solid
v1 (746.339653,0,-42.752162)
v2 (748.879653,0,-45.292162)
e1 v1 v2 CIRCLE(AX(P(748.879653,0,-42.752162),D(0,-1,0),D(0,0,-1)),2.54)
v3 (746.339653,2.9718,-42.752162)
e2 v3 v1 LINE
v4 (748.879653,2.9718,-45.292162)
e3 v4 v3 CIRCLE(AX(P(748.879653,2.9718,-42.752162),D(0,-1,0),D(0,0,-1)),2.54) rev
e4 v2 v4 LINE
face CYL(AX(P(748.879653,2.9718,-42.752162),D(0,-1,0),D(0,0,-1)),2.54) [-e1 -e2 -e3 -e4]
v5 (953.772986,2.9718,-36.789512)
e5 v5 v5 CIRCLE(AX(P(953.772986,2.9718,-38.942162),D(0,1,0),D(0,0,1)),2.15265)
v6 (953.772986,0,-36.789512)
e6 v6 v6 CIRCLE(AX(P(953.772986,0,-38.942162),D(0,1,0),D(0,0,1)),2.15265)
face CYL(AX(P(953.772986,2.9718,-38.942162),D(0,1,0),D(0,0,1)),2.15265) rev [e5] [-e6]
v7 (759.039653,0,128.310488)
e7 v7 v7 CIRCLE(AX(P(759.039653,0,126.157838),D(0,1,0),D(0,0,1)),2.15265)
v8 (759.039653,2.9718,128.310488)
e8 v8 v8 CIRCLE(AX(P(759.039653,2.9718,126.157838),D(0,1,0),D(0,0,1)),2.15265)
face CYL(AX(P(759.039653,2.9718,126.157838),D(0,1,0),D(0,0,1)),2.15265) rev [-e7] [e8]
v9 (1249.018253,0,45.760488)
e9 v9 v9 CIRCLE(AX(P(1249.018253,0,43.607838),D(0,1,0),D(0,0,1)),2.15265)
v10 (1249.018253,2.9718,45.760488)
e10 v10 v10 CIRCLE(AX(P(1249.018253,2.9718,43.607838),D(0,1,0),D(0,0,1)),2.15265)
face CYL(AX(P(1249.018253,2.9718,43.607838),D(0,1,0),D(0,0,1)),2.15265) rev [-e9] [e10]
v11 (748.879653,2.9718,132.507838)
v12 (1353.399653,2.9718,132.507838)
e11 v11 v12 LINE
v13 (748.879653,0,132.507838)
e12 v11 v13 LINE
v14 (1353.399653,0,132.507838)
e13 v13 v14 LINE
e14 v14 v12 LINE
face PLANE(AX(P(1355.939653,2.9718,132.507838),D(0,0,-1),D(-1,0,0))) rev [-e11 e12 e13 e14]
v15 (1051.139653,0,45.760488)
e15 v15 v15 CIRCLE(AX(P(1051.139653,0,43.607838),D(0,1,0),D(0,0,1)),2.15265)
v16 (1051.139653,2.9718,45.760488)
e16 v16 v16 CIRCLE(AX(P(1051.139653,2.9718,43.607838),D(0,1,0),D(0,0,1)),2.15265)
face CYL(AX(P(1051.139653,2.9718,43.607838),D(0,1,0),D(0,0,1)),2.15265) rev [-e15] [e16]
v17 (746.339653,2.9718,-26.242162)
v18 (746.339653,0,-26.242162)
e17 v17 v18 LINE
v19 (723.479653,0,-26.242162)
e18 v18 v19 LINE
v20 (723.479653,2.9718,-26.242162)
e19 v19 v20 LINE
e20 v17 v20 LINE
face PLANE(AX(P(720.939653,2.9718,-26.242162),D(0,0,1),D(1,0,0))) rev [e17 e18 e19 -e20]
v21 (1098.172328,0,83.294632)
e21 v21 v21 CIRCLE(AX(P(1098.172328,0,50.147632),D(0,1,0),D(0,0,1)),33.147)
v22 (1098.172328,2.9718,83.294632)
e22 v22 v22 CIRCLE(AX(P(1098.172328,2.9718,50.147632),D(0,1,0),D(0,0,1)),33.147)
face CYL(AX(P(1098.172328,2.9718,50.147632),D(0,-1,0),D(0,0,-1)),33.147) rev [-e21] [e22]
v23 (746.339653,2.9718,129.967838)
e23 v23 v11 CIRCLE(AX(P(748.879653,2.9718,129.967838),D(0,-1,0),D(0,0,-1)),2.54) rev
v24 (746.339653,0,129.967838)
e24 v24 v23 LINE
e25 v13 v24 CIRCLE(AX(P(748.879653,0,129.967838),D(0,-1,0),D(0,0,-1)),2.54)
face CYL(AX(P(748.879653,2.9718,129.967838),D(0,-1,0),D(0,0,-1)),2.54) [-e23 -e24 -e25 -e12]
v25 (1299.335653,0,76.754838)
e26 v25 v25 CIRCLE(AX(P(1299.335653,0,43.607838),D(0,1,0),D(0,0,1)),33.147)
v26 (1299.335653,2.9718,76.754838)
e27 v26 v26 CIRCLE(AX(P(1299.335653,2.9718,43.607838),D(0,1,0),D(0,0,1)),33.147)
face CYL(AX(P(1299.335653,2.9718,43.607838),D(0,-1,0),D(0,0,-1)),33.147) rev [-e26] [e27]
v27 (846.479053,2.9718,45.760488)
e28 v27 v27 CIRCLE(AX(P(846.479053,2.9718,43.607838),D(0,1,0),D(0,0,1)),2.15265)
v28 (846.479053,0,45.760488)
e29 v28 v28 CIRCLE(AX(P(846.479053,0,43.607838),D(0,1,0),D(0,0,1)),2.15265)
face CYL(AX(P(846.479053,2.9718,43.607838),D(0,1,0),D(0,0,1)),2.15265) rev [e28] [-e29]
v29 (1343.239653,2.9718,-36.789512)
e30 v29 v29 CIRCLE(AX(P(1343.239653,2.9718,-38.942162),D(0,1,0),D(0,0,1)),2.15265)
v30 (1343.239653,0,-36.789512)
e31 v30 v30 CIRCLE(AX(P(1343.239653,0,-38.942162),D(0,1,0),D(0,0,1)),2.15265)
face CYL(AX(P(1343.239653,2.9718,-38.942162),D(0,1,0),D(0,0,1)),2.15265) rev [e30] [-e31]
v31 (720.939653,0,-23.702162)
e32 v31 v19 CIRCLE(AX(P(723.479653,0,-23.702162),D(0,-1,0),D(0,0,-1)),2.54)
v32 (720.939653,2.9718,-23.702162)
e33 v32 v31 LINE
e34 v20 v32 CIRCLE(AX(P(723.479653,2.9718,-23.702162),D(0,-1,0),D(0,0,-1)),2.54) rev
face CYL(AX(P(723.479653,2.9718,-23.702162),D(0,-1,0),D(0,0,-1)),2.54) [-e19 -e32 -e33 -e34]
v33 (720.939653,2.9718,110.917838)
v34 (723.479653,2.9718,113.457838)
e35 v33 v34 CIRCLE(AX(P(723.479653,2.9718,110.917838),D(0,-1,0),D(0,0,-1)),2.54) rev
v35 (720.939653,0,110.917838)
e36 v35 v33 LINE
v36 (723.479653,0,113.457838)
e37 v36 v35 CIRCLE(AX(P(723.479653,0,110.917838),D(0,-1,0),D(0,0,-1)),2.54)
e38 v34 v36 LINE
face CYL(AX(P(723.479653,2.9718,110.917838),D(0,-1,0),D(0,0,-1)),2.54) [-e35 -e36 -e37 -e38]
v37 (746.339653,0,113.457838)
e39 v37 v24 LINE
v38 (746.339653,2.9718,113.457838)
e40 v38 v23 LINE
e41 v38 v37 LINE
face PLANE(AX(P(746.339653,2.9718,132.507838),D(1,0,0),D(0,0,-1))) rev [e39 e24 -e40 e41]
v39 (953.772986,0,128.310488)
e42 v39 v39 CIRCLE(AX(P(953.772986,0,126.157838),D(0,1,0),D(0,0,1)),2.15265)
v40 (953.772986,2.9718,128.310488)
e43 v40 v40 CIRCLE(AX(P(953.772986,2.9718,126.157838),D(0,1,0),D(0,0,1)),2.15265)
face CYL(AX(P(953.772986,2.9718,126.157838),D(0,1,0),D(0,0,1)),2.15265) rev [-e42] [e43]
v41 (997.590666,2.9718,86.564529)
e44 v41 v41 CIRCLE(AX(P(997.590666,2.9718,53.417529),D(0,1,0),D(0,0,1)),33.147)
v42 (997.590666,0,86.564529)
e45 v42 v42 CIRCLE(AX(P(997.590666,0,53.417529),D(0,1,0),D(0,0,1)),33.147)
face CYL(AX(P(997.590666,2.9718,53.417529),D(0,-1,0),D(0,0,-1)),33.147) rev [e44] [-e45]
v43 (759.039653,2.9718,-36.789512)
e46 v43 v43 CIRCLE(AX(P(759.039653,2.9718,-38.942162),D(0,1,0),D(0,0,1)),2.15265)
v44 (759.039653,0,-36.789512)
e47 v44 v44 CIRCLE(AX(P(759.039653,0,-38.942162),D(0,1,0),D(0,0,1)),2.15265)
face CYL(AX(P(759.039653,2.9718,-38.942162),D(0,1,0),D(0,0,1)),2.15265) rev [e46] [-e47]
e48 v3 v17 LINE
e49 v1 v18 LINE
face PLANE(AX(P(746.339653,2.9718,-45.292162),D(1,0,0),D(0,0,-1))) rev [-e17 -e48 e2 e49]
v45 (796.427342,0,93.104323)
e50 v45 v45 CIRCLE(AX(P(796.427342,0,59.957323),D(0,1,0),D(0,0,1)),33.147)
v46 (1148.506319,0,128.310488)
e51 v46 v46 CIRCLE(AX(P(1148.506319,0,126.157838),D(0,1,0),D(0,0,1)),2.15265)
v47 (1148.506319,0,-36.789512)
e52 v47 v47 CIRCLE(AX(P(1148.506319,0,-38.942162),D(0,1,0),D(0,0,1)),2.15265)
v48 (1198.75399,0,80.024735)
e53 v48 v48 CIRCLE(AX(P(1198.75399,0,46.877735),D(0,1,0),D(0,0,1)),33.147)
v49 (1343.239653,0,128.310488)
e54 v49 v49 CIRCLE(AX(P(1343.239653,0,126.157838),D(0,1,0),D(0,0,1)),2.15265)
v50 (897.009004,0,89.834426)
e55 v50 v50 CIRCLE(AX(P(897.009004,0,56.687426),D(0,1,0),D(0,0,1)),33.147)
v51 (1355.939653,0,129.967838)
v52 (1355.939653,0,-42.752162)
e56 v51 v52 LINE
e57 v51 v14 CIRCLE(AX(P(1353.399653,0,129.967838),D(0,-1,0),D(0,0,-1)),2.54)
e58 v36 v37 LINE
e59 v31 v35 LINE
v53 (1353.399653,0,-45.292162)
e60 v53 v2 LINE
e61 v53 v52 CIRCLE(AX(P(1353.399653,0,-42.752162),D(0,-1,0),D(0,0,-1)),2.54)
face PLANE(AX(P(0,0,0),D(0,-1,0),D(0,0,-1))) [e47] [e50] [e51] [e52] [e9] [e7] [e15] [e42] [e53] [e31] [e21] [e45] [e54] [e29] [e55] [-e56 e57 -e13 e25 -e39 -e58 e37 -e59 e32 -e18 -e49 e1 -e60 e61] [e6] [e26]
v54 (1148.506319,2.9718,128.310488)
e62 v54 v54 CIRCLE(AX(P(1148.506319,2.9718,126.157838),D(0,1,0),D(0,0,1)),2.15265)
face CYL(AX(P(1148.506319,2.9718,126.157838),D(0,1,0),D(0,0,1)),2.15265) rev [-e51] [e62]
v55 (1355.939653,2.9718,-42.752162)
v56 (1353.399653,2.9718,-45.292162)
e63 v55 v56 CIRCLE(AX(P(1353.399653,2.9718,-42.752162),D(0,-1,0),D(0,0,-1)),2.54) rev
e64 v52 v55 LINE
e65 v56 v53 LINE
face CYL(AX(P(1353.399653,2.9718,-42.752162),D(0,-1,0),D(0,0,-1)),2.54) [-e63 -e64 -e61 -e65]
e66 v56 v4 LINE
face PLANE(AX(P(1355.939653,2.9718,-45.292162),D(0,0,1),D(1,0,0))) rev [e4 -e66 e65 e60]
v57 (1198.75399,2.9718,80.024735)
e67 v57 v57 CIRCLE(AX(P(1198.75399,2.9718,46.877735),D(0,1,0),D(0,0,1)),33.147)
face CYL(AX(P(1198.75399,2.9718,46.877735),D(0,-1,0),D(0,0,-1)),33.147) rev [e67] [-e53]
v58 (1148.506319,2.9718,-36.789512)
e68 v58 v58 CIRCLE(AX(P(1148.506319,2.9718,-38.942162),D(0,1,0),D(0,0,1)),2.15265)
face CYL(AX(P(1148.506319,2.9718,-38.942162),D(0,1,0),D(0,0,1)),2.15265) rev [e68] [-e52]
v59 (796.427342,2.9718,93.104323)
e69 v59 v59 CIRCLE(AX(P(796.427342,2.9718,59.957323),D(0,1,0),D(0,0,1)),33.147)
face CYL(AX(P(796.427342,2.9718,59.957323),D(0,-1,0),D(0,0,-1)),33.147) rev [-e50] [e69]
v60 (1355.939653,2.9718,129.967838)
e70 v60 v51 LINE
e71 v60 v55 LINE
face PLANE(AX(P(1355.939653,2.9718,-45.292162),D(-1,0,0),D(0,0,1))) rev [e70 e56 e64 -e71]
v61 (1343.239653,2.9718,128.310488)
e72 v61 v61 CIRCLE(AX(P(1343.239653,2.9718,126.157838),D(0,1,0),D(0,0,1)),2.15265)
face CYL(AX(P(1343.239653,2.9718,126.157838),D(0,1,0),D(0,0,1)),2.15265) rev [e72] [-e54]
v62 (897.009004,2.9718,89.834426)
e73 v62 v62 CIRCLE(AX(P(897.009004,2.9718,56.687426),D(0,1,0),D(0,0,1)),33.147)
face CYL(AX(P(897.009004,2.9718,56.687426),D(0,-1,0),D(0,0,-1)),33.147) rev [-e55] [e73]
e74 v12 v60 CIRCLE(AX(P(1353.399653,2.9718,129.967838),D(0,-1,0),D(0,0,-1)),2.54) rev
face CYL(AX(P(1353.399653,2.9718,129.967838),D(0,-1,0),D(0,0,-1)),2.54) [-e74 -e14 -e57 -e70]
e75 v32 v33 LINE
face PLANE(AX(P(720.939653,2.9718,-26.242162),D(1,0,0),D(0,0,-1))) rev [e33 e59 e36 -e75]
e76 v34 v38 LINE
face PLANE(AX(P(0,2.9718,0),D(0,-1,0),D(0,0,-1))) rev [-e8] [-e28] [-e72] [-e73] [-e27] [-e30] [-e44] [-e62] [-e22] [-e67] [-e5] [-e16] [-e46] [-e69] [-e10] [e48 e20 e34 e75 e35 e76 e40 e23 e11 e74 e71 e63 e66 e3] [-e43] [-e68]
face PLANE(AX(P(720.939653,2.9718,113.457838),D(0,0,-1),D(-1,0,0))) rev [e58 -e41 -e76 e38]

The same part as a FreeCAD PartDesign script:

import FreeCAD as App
import Part
import Sketcher
Q = App.Units.Quantity


def edges_at(feature, points):
    """Names of the edges that pass closest to the given points."""
    edges = feature.Shape.Edges
    near = lambda p: min(range(len(edges)), key=lambda i: edges[i].distToShape(Part.Vertex(*p))[0])
    return sorted({f"Edge{near(p) + 1}" for p in points})


def add_polygon(sketch, points):
    """Adds a closed chain of lines whose ends are joined by coincident constraints."""
    first, n = sketch.GeometryCount, len(points)
    for a, b in zip(points, points[1:] + points[:1]):
        sketch.addGeometry(Part.LineSegment(App.Vector(*a, 0), App.Vector(*b, 0)), False)
    for i in range(n):
        sketch.addConstraint(Sketcher.Constraint("Coincident", first + i, 2, first + (i + 1) % n, 1))

doc = App.newDocument("Part")
params = doc.addObject("Spreadsheet::Sheet", "Params")
for row, (alias, value) in enumerate([
    ("sketch1_diameter", "2.61 in"),
    ("sketch1_width", "1 in"),
    ("sketch1_width2", "24 in"),
    ("sketch1_height", "7 in"),
    ("sketch1_height2", "5.5 in"),
    ("pad1_length", "0.117 in"),
    ("hole_diameter", "0.1695 in"),
    ("fillet_radius", "0.1 in"),
], start=1):
    params.set(f"A{row}", alias)
    params.set(f"B{row}", "=" + value)
    params.setAlias(f"B{row}", alias)

body = doc.addObject("PartDesign::Body", "Body")

sketch1 = doc.addObject("Sketcher::SketchObject", "Sketch")
body.addObject(sketch1)
sketch1.AttachmentSupport = (doc.XZ_Plane, [""])
sketch1.MapMode = "FlatFace"
add_polygon(sketch1, [(720.939653, -26.242162), (720.939653, 113.457838), (746.339653, 113.457838), (746.339653, 132.507838), (1355.939653, 132.507838), (1355.939653, -45.292162), (746.339653, -45.292162), (746.339653, -26.242162)])
sketch1.addGeometry(Part.Circle(App.Vector(796.427342, 59.957323, 0), App.Vector(0, 0, 1), 33.147), False)
sketch1.addGeometry(Part.Circle(App.Vector(897.009004, 56.687426, 0), App.Vector(0, 0, 1), 33.147), False)
sketch1.addGeometry(Part.Circle(App.Vector(997.590666, 53.417529, 0), App.Vector(0, 0, 1), 33.147), False)
sketch1.addGeometry(Part.Circle(App.Vector(1098.172328, 50.147632, 0), App.Vector(0, 0, 1), 33.147), False)
sketch1.addGeometry(Part.Circle(App.Vector(1198.75399, 46.877735, 0), App.Vector(0, 0, 1), 33.147), False)
sketch1.addGeometry(Part.Circle(App.Vector(1299.335653, 43.607838, 0), App.Vector(0, 0, 1), 33.147), False)
sketch1.addConstraint(Sketcher.Constraint("Vertical", 0))
sketch1.addConstraint(Sketcher.Constraint("Horizontal", 1))
sketch1.addConstraint(Sketcher.Constraint("Vertical", 2))
sketch1.addConstraint(Sketcher.Constraint("Horizontal", 3))
sketch1.addConstraint(Sketcher.Constraint("Vertical", 4))
sketch1.addConstraint(Sketcher.Constraint("Horizontal", 5))
sketch1.addConstraint(Sketcher.Constraint("Vertical", 6))
sketch1.addConstraint(Sketcher.Constraint("Horizontal", 7))
sketch1.addConstraint(Sketcher.Constraint("Equal", 8, 9))
sketch1.addConstraint(Sketcher.Constraint("Equal", 9, 10))
sketch1.addConstraint(Sketcher.Constraint("Equal", 10, 11))
sketch1.addConstraint(Sketcher.Constraint("Equal", 11, 12))
sketch1.addConstraint(Sketcher.Constraint("Equal", 12, 13))
sketch1.addConstraint(Sketcher.Constraint("Vertical", 2, 2, 5, 2))
sketch1.addConstraint(Sketcher.Constraint("Equal", 2, 6))
sketch1.addConstraint(Sketcher.Constraint("Diameter", 8, Q("2.61 in")))
sketch1.addConstraint(Sketcher.Constraint("DistanceX", 1, 1, 1, 2, Q("1 in")))
sketch1.addConstraint(Sketcher.Constraint("DistanceX", 3, 1, 3, 2, Q("24 in")))
sketch1.addConstraint(Sketcher.Constraint("DistanceY", 4, 2, 4, 1, Q("7 in")))
sketch1.addConstraint(Sketcher.Constraint("DistanceY", 0, 1, 0, 2, Q("5.5 in")))
sketch1.addConstraint(Sketcher.Constraint("DistanceY", 13, 3, 3, 2, Q("3.5 in")))
sketch1.addConstraint(Sketcher.Constraint("DistanceX", 13, 3, 3, 2, 56.604))
sketch1.addConstraint(Sketcher.Constraint("DistanceY", -1, 1, 10, 3, 53.417529))
sketch1.addConstraint(Sketcher.Constraint("DistanceX", -1, 1, 11, 3, 1098.172328))
sketch1.addConstraint(Sketcher.Constraint("DistanceY", -1, 1, 11, 3, 50.147632))
sketch1.addConstraint(Sketcher.Constraint("DistanceX", -1, 1, 12, 3, 1198.75399))
sketch1.addConstraint(Sketcher.Constraint("DistanceY", 11, 3, 8, 3, 9.809691))
sketch1.addConstraint(Sketcher.Constraint("DistanceY", 12, 3, 9, 3, 9.809691))
sketch1.addConstraint(Sketcher.Constraint("DistanceX", 8, 3, 12, 3, 402.326648))
sketch1.addConstraint(Sketcher.Constraint("DistanceY", 12, 3, 8, 3, 13.079588))
sketch1.addConstraint(Sketcher.Constraint("DistanceY", 13, 3, 10, 3, 9.809691))
sketch1.addConstraint(Sketcher.Constraint("DistanceX", 9, 3, 13, 3, 402.326648))
sketch1.addConstraint(Sketcher.Constraint("DistanceX", 8, 3, 13, 3, 502.90831))
sketch1.addConstraint(Sketcher.Constraint("DistanceX", -1, 1, 10, 3, 997.590666))
sketch1.setExpression("Constraints[23]", "Params.sketch1_diameter")
sketch1.setExpression("Constraints[24]", "Params.sketch1_width")
sketch1.setExpression("Constraints[25]", "Params.sketch1_width2")
sketch1.setExpression("Constraints[26]", "Params.sketch1_height")
sketch1.setExpression("Constraints[27]", "Params.sketch1_height2")
pad1 = doc.addObject("PartDesign::Pad", "Pad")
body.addObject(pad1)
pad1.Profile = sketch1
pad1.setExpression("Length", "Params.pad1_length")
pad1.Reversed = True

sketch2 = doc.addObject("Sketcher::SketchObject", "Sketch001")
body.addObject(sketch2)
sketch2.AttachmentSupport = (doc.XZ_Plane, [""])
sketch2.MapMode = "FlatFace"
sketch2.AttachmentOffset = App.Placement(App.Vector(0, 0, -0.117 * 25.4), App.Rotation())
sketch2.addGeometry(Part.Circle(App.Vector(759.039653, -38.942162, 0), App.Vector(0, 0, 1), 2.15265), False)
sketch2.addGeometry(Part.Circle(App.Vector(759.039653, 126.157838, 0), App.Vector(0, 0, 1), 2.15265), False)
sketch2.addGeometry(Part.Circle(App.Vector(953.772986, 126.157838, 0), App.Vector(0, 0, 1), 2.15265), False)
sketch2.addGeometry(Part.Circle(App.Vector(953.772986, -38.942162, 0), App.Vector(0, 0, 1), 2.15265), False)
sketch2.addGeometry(Part.Circle(App.Vector(1148.506319, -38.942162, 0), App.Vector(0, 0, 1), 2.15265), False)
sketch2.addGeometry(Part.Circle(App.Vector(1148.506319, 126.157838, 0), App.Vector(0, 0, 1), 2.15265), False)
sketch2.addGeometry(Part.Circle(App.Vector(1343.239653, 126.157838, 0), App.Vector(0, 0, 1), 2.15265), False)
sketch2.addGeometry(Part.Circle(App.Vector(1343.239653, -38.942162, 0), App.Vector(0, 0, 1), 2.15265), False)
sketch2.addGeometry(Part.Circle(App.Vector(1249.018253, 43.607838, 0), App.Vector(0, 0, 1), 2.15265), False)
sketch2.addGeometry(Part.Circle(App.Vector(1051.139653, 43.607838, 0), App.Vector(0, 0, 1), 2.15265), False)
sketch2.addGeometry(Part.Circle(App.Vector(846.479053, 43.607838, 0), App.Vector(0, 0, 1), 2.15265), False)
sketch2.addConstraint(Sketcher.Constraint("Equal", 0, 1))
sketch2.addConstraint(Sketcher.Constraint("Equal", 1, 2))
sketch2.addConstraint(Sketcher.Constraint("Equal", 2, 3))
sketch2.addConstraint(Sketcher.Constraint("Equal", 3, 4))
sketch2.addConstraint(Sketcher.Constraint("Equal", 4, 5))
sketch2.addConstraint(Sketcher.Constraint("Equal", 5, 6))
sketch2.addConstraint(Sketcher.Constraint("Equal", 6, 7))
sketch2.addConstraint(Sketcher.Constraint("Equal", 7, 8))
sketch2.addConstraint(Sketcher.Constraint("Equal", 8, 9))
sketch2.addConstraint(Sketcher.Constraint("Equal", 9, 10))
sketch2.addConstraint(Sketcher.Constraint("Horizontal", 1, 3, 2, 3))
sketch2.addConstraint(Sketcher.Constraint("Horizontal", 0, 3, 3, 3))
sketch2.addConstraint(Sketcher.Constraint("Horizontal", 3, 3, 4, 3))
sketch2.addConstraint(Sketcher.Constraint("Horizontal", 2, 3, 5, 3))
sketch2.addConstraint(Sketcher.Constraint("Horizontal", 5, 3, 6, 3))
sketch2.addConstraint(Sketcher.Constraint("Horizontal", 4, 3, 7, 3))
sketch2.addConstraint(Sketcher.Constraint("Horizontal", 8, 3, 9, 3))
sketch2.addConstraint(Sketcher.Constraint("Horizontal", 9, 3, 10, 3))
sketch2.addConstraint(Sketcher.Constraint("Vertical", 0, 3, 1, 3))
sketch2.addConstraint(Sketcher.Constraint("Vertical", 2, 3, 3, 3))
sketch2.addConstraint(Sketcher.Constraint("Vertical", 4, 3, 5, 3))
sketch2.addConstraint(Sketcher.Constraint("Vertical", 6, 3, 7, 3))
sketch2.addConstraint(Sketcher.Constraint("DistanceX", 1, 3, 6, 3, Q("23 in")))
sketch2.addConstraint(Sketcher.Constraint("Diameter", 0, Q("0.1695 in")))
sketch2.addConstraint(Sketcher.Constraint("DistanceY", 0, 3, 1, 3, Q("6.5 in")))
sketch2.addConstraint(Sketcher.Constraint("DistanceY", 7, 3, 8, 3, Q("3.25 in")))
sketch2.addConstraint(Sketcher.Constraint("DistanceX", 8, 3, 7, 3, 94.2214))
sketch2.addConstraint(Sketcher.Constraint("DistanceX", 9, 3, 8, 3, 197.8786))
sketch2.addConstraint(Sketcher.Constraint("DistanceX", 0, 3, 10, 3, 87.4394))
sketch2.addConstraint(Sketcher.Constraint("DistanceX", -1, 1, 4, 3, 1148.506319))
sketch2.addConstraint(Sketcher.Constraint("DistanceX", -1, 1, 0, 3, 759.039653))
sketch2.addConstraint(Sketcher.Constraint("DistanceY", 0, 3, -1, 1, 38.942162))
sketch2.addConstraint(Sketcher.Constraint("DistanceX", -1, 1, 2, 3, 953.772986))
doc.recompute()
hole = doc.addObject("PartDesign::Hole", "Hole")
body.addObject(hole)
hole.Profile = sketch2
hole.ThreadType = "None"
hole.setExpression("Diameter", "Params.hole_diameter")
hole.DepthType = "ThroughAll"
hole.Reversed = True
doc.recompute()

fillet = doc.addObject("PartDesign::Fillet", "Fillet")
body.addObject(fillet)
fillet.Base = (hole, edges_at(hole, [
    (746.34, 1.486, 132.508),
    (720.94, 1.486, 113.458),
    (720.94, 1.486, -26.242),
    (746.34, 1.486, -45.292),
    (1355.94, 1.486, -45.292),
    (1355.94, 1.486, 132.508),
]))
fillet.setExpression("Radius", "Params.fillet_radius")

doc.recompute()
